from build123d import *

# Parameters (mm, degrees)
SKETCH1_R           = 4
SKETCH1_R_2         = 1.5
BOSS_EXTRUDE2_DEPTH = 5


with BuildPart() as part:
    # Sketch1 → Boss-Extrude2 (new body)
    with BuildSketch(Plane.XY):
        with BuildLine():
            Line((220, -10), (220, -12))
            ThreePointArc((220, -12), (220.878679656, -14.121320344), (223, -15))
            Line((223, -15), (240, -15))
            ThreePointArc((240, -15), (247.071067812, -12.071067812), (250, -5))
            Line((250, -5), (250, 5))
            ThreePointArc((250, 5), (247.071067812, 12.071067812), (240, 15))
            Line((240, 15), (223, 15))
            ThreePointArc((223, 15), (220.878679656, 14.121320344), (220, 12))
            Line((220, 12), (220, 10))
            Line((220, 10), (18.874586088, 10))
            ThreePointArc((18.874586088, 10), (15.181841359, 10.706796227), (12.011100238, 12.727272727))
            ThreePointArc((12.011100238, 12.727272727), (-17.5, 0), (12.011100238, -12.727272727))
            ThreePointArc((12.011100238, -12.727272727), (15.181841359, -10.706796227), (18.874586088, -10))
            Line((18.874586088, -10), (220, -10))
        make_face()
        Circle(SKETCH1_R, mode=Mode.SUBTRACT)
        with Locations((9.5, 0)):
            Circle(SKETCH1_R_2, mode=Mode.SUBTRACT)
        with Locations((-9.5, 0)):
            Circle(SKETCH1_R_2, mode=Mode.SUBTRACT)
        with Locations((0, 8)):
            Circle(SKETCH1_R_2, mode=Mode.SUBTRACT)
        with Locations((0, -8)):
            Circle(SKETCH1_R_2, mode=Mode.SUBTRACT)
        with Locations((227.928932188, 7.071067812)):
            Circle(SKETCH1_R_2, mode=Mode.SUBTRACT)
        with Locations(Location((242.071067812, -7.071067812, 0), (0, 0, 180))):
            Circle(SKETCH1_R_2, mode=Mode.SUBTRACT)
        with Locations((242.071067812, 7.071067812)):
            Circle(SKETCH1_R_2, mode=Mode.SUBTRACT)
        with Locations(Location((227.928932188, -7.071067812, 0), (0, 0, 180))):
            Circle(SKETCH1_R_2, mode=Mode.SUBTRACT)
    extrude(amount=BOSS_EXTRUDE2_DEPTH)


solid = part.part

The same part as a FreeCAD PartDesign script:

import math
import FreeCAD as App
import Part
import Sketcher

doc = App.newDocument("Part")
body = doc.addObject("PartDesign::Body", "Body")

# Sketch on XY plane
sketch1 = doc.addObject("Sketcher::SketchObject", "Sketch")
body.addObject(sketch1)
sketch1.AttachmentSupport = (doc.XY_Plane, [""])
sketch1.MapMode = "FlatFace"
sketch1.addGeometry(Part.LineSegment(App.Vector(220, -10, 0), App.Vector(220, -12, 0)), False)
sketch1.addGeometry(Part.ArcOfCircle(Part.Circle(App.Vector(223, -12, 0), App.Vector(0, 0, 1), 3), math.radians(180), math.radians(270)), False)
sketch1.addGeometry(Part.LineSegment(App.Vector(223, -15, 0), App.Vector(240, -15, 0)), False)
sketch1.addGeometry(Part.ArcOfCircle(Part.Circle(App.Vector(240, -5, 0), App.Vector(0, 0, 1), 10), math.radians(-90), math.radians(0)), False)
sketch1.addGeometry(Part.LineSegment(App.Vector(250, -5, 0), App.Vector(250, 5, 0)), False)
sketch1.addGeometry(Part.ArcOfCircle(Part.Circle(App.Vector(240, 5, 0), App.Vector(0, 0, 1), 10), math.radians(0), math.radians(90)), False)
sketch1.addGeometry(Part.LineSegment(App.Vector(240, 15, 0), App.Vector(223, 15, 0)), False)
sketch1.addGeometry(Part.ArcOfCircle(Part.Circle(App.Vector(223, 12, 0), App.Vector(0, 0, 1), 3), math.radians(90), math.radians(180)), False)
sketch1.addGeometry(Part.LineSegment(App.Vector(220, 12, 0), App.Vector(220, 10, 0)), False)
sketch1.addGeometry(Part.LineSegment(App.Vector(220, 10, 0), App.Vector(18.9, 10, 0)), False)
sketch1.addGeometry(Part.ArcOfCircle(Part.Circle(App.Vector(18.9, 20, 0), App.Vector(0, 0, 1), 10), math.radians(-133), math.radians(-90)), False)
sketch1.addGeometry(Part.ArcOfCircle(Part.Circle(App.Vector(0, 0, 0), App.Vector(0, 0, 1), 17.5), math.radians(47), math.radians(313)), False)
sketch1.addGeometry(Part.ArcOfCircle(Part.Circle(App.Vector(18.9, -20, 0), App.Vector(0, 0, 1), 10), math.radians(90), math.radians(133)), False)
sketch1.addGeometry(Part.LineSegment(App.Vector(18.9, -10, 0), App.Vector(220, -10, 0)), False)
sketch1.addGeometry(Part.Circle(App.Vector(0, -8, 0), App.Vector(0, 0, 1), 1.5), False)
sketch1.addGeometry(Part.Circle(App.Vector(227.9, -7.1, 0), App.Vector(0, 0, 1), 1.5), False)
sketch1.addGeometry(Part.Circle(App.Vector(242.1, -7.1, 0), App.Vector(0, 0, 1), 1.5), False)
sketch1.addGeometry(Part.Circle(App.Vector(-9.5, 0, 0), App.Vector(0, 0, 1), 1.5), False)
sketch1.addGeometry(Part.Circle(App.Vector(0, 0, 0), App.Vector(0, 0, 1), 4), False)
sketch1.addGeometry(Part.Circle(App.Vector(9.5, 0, 0), App.Vector(0, 0, 1), 1.5), False)
sketch1.addGeometry(Part.Circle(App.Vector(0, 8, 0), App.Vector(0, 0, 1), 1.5), False)
sketch1.addGeometry(Part.Circle(App.Vector(227.9, 7.1, 0), App.Vector(0, 0, 1), 1.5), False)
sketch1.addGeometry(Part.Circle(App.Vector(242.1, 7.1, 0), App.Vector(0, 0, 1), 1.5), False)
sketch1.addConstraint(Sketcher.Constraint("Tangent", 0, 2, 1, 1))
sketch1.addConstraint(Sketcher.Constraint("Tangent", 1, 2, 2, 1))
sketch1.addConstraint(Sketcher.Constraint("Tangent", 2, 2, 3, 1))
sketch1.addConstraint(Sketcher.Constraint("Tangent", 3, 2, 4, 1))
sketch1.addConstraint(Sketcher.Constraint("Tangent", 4, 2, 5, 1))
sketch1.addConstraint(Sketcher.Constraint("Tangent", 5, 2, 6, 1))
sketch1.addConstraint(Sketcher.Constraint("Tangent", 6, 2, 7, 1))
sketch1.addConstraint(Sketcher.Constraint("Tangent", 7, 2, 8, 1))
sketch1.addConstraint(Sketcher.Constraint("Coincident", 8, 2, 9, 1))
sketch1.addConstraint(Sketcher.Constraint("Tangent", 9, 2, 10, 2))
sketch1.addConstraint(Sketcher.Constraint("Tangent", 10, 1, 11, 1))
sketch1.addConstraint(Sketcher.Constraint("Tangent", 11, 2, 12, 2))
sketch1.addConstraint(Sketcher.Constraint("Tangent", 12, 1, 13, 1))
sketch1.addConstraint(Sketcher.Constraint("Coincident", 13, 2, 0, 1))
sketch1.addConstraint(Sketcher.Constraint("Vertical", 0))
sketch1.addConstraint(Sketcher.Constraint("Horizontal", 2))
sketch1.addConstraint(Sketcher.Constraint("Vertical", 4))
sketch1.addConstraint(Sketcher.Constraint("Horizontal", 6))
sketch1.addConstraint(Sketcher.Constraint("Vertical", 8))
sketch1.addConstraint(Sketcher.Constraint("Horizontal", 9))
sketch1.addConstraint(Sketcher.Constraint("Horizontal", 13))
sketch1.addConstraint(Sketcher.Constraint("Coincident", 11, 3, -1, 1))
sketch1.addConstraint(Sketcher.Constraint("Coincident", 18, 3, -1, 1))
sketch1.addConstraint(Sketcher.Constraint("Equal", 3, 5))
sketch1.addConstraint(Sketcher.Constraint("Equal", 1, 7))
sketch1.addConstraint(Sketcher.Constraint("Equal", 5, 10))
sketch1.addConstraint(Sketcher.Constraint("Equal", 10, 12))
sketch1.addConstraint(Sketcher.Constraint("Equal", 14, 15))
sketch1.addConstraint(Sketcher.Constraint("Equal", 15, 16))
sketch1.addConstraint(Sketcher.Constraint("Equal", 16, 17))
sketch1.addConstraint(Sketcher.Constraint("Equal", 17, 19))
sketch1.addConstraint(Sketcher.Constraint("Equal", 19, 20))
sketch1.addConstraint(Sketcher.Constraint("Equal", 20, 21))
sketch1.addConstraint(Sketcher.Constraint("Equal", 21, 22))
sketch1.addConstraint(Sketcher.Constraint("Symmetric", 17, 3, 19, 3, -1, 1))
sketch1.addConstraint(Sketcher.Constraint("Symmetric", 14, 3, 20, 3, -1, 1))
sketch1.addConstraint(Sketcher.Constraint("Symmetric", 1, 3, 7, 3, -1))
sketch1.addConstraint(Sketcher.Constraint("Symmetric", 15, 3, 21, 3, -1))
sketch1.addConstraint(Sketcher.Constraint("Symmetric", 16, 3, 22, 3, -1))
sketch1.addConstraint(Sketcher.Constraint("PointOnObject", 14, 3, -2))
sketch1.addConstraint(Sketcher.Constraint("PointOnObject", 17, 3, -1))
sketch1.addConstraint(Sketcher.Constraint("Horizontal", 15, 3, 16, 3))
sketch1.addConstraint(Sketcher.Constraint("Vertical", 10, 3, 12, 3))
sketch1.addConstraint(Sketcher.Constraint("Diameter", 14, 3.0))
sketch1.addConstraint(Sketcher.Constraint("Diameter", 18, 8.0))
sketch1.addConstraint(Sketcher.Constraint("Radius", 1, 3.0))
sketch1.addConstraint(Sketcher.Constraint("Radius", 3, 10.0))
sketch1.addConstraint(Sketcher.Constraint("Radius", 11, 17.5))
sketch1.addConstraint(Sketcher.Constraint("DistanceX", 2, 1, 2, 2, 17.0))
sketch1.addConstraint(Sketcher.Constraint("DistanceY", 0, 2, 0, 1, 2.0))
sketch1.addConstraint(Sketcher.Constraint("DistanceY", 4, 1, 4, 2, 10.0))
sketch1.addConstraint(Sketcher.Constraint("DistanceX", -1, 1, 1, 3, 223.0))
sketch1.addConstraint(Sketcher.Constraint("DistanceY", 14, 3, -1, 1, 8.0))
sketch1.addConstraint(Sketcher.Constraint("DistanceX", 17, 3, 19, 3, 19.0))
sketch1.addConstraint(Sketcher.Constraint("DistanceX", -1, 1, 15, 3, 227.928932))
sketch1.addConstraint(Sketcher.Constraint("DistanceY", 15, 3, -1, 1, 7.071068))
sketch1.addConstraint(Sketcher.Constraint("DistanceX", -1, 1, 16, 3, 242.071068))
pad1 = doc.addObject("PartDesign::Pad", "Pad")
body.addObject(pad1)
pad1.Profile = sketch1
pad1.Length = 5

doc.recompute()
